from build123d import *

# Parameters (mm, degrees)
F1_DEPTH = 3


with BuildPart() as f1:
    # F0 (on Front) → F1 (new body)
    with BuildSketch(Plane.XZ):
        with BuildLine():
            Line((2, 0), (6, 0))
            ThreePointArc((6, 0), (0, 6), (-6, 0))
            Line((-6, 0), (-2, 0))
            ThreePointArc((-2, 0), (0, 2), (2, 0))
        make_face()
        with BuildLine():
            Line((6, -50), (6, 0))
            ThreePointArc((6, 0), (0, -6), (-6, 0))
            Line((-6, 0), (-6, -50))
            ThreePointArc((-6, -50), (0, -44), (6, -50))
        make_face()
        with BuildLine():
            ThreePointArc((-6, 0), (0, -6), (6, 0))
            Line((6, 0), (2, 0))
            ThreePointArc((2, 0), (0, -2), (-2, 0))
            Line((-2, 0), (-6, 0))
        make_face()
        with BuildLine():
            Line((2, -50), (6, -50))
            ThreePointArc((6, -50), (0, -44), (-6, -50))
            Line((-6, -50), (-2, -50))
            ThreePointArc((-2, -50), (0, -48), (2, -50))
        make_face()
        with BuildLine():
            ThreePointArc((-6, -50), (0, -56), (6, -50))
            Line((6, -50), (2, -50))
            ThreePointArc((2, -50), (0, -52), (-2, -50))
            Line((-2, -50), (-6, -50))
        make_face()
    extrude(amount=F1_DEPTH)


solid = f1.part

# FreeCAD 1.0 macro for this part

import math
import FreeCAD as App
import Part
import Sketcher
Q = App.Units.Quantity

doc = App.newDocument("Part")
body = doc.addObject("PartDesign::Body", "Body")

# Sketch on XZ plane
sketch1 = body.newObject("Sketcher::SketchObject", "Sketch")
sketch1.AttachmentSupport = (doc.getObject("XZ_Plane"), [""])
sketch1.MapMode = "FlatFace"
sketch1.addGeometry(Part.ArcOfCircle(Part.Circle(App.Vector(0, 0, 0), App.Vector(0, 0, 1), 6), math.radians(0), math.radians(180)), False)
sketch1.addGeometry(Part.LineSegment(App.Vector(-6, 0, 0), App.Vector(-6, -50, 0)), False)
sketch1.addGeometry(Part.ArcOfCircle(Part.Circle(App.Vector(0, -50, 0), App.Vector(0, 0, 1), 6), math.radians(180), math.radians(360)), False)
sketch1.addGeometry(Part.LineSegment(App.Vector(6, -50, 0), App.Vector(6, 0, 0)), False)
sketch1.addGeometry(Part.Circle(App.Vector(0, -50, 0), App.Vector(0, 0, 1), 2), False)
sketch1.addGeometry(Part.Circle(App.Vector(0, 0, 0), App.Vector(0, 0, 1), 2), False)
sketch1.addConstraint(Sketcher.Constraint("Tangent", 0, 2, 1, 1))
sketch1.addConstraint(Sketcher.Constraint("Tangent", 1, 2, 2, 1))
sketch1.addConstraint(Sketcher.Constraint("Tangent", 2, 2, 3, 1))
sketch1.addConstraint(Sketcher.Constraint("Tangent", 3, 2, 0, 1))
sketch1.addConstraint(Sketcher.Constraint("Vertical", 1))
sketch1.addConstraint(Sketcher.Constraint("Vertical", 3))
sketch1.addConstraint(Sketcher.Constraint("Coincident", 0, 3, -1, 1))
sketch1.addConstraint(Sketcher.Constraint("Coincident", 5, 3, -1, 1))
sketch1.addConstraint(Sketcher.Constraint("Coincident", 4, 3, 2, 3))
sketch1.addConstraint(Sketcher.Constraint("Equal", 4, 5))
sketch1.addConstraint(Sketcher.Constraint("Diameter", 4, Q("4 mm")))
sketch1.addConstraint(Sketcher.Constraint("Radius", 0, Q("6 mm")))
sketch1.addConstraint(Sketcher.Constraint("DistanceY", 1, 2, 1, 1, Q("50 mm")))
pad1 = body.newObject("PartDesign::Pad", "Pad")
pad1.Profile = sketch1
pad1.Length = 3

doc.recompute()
